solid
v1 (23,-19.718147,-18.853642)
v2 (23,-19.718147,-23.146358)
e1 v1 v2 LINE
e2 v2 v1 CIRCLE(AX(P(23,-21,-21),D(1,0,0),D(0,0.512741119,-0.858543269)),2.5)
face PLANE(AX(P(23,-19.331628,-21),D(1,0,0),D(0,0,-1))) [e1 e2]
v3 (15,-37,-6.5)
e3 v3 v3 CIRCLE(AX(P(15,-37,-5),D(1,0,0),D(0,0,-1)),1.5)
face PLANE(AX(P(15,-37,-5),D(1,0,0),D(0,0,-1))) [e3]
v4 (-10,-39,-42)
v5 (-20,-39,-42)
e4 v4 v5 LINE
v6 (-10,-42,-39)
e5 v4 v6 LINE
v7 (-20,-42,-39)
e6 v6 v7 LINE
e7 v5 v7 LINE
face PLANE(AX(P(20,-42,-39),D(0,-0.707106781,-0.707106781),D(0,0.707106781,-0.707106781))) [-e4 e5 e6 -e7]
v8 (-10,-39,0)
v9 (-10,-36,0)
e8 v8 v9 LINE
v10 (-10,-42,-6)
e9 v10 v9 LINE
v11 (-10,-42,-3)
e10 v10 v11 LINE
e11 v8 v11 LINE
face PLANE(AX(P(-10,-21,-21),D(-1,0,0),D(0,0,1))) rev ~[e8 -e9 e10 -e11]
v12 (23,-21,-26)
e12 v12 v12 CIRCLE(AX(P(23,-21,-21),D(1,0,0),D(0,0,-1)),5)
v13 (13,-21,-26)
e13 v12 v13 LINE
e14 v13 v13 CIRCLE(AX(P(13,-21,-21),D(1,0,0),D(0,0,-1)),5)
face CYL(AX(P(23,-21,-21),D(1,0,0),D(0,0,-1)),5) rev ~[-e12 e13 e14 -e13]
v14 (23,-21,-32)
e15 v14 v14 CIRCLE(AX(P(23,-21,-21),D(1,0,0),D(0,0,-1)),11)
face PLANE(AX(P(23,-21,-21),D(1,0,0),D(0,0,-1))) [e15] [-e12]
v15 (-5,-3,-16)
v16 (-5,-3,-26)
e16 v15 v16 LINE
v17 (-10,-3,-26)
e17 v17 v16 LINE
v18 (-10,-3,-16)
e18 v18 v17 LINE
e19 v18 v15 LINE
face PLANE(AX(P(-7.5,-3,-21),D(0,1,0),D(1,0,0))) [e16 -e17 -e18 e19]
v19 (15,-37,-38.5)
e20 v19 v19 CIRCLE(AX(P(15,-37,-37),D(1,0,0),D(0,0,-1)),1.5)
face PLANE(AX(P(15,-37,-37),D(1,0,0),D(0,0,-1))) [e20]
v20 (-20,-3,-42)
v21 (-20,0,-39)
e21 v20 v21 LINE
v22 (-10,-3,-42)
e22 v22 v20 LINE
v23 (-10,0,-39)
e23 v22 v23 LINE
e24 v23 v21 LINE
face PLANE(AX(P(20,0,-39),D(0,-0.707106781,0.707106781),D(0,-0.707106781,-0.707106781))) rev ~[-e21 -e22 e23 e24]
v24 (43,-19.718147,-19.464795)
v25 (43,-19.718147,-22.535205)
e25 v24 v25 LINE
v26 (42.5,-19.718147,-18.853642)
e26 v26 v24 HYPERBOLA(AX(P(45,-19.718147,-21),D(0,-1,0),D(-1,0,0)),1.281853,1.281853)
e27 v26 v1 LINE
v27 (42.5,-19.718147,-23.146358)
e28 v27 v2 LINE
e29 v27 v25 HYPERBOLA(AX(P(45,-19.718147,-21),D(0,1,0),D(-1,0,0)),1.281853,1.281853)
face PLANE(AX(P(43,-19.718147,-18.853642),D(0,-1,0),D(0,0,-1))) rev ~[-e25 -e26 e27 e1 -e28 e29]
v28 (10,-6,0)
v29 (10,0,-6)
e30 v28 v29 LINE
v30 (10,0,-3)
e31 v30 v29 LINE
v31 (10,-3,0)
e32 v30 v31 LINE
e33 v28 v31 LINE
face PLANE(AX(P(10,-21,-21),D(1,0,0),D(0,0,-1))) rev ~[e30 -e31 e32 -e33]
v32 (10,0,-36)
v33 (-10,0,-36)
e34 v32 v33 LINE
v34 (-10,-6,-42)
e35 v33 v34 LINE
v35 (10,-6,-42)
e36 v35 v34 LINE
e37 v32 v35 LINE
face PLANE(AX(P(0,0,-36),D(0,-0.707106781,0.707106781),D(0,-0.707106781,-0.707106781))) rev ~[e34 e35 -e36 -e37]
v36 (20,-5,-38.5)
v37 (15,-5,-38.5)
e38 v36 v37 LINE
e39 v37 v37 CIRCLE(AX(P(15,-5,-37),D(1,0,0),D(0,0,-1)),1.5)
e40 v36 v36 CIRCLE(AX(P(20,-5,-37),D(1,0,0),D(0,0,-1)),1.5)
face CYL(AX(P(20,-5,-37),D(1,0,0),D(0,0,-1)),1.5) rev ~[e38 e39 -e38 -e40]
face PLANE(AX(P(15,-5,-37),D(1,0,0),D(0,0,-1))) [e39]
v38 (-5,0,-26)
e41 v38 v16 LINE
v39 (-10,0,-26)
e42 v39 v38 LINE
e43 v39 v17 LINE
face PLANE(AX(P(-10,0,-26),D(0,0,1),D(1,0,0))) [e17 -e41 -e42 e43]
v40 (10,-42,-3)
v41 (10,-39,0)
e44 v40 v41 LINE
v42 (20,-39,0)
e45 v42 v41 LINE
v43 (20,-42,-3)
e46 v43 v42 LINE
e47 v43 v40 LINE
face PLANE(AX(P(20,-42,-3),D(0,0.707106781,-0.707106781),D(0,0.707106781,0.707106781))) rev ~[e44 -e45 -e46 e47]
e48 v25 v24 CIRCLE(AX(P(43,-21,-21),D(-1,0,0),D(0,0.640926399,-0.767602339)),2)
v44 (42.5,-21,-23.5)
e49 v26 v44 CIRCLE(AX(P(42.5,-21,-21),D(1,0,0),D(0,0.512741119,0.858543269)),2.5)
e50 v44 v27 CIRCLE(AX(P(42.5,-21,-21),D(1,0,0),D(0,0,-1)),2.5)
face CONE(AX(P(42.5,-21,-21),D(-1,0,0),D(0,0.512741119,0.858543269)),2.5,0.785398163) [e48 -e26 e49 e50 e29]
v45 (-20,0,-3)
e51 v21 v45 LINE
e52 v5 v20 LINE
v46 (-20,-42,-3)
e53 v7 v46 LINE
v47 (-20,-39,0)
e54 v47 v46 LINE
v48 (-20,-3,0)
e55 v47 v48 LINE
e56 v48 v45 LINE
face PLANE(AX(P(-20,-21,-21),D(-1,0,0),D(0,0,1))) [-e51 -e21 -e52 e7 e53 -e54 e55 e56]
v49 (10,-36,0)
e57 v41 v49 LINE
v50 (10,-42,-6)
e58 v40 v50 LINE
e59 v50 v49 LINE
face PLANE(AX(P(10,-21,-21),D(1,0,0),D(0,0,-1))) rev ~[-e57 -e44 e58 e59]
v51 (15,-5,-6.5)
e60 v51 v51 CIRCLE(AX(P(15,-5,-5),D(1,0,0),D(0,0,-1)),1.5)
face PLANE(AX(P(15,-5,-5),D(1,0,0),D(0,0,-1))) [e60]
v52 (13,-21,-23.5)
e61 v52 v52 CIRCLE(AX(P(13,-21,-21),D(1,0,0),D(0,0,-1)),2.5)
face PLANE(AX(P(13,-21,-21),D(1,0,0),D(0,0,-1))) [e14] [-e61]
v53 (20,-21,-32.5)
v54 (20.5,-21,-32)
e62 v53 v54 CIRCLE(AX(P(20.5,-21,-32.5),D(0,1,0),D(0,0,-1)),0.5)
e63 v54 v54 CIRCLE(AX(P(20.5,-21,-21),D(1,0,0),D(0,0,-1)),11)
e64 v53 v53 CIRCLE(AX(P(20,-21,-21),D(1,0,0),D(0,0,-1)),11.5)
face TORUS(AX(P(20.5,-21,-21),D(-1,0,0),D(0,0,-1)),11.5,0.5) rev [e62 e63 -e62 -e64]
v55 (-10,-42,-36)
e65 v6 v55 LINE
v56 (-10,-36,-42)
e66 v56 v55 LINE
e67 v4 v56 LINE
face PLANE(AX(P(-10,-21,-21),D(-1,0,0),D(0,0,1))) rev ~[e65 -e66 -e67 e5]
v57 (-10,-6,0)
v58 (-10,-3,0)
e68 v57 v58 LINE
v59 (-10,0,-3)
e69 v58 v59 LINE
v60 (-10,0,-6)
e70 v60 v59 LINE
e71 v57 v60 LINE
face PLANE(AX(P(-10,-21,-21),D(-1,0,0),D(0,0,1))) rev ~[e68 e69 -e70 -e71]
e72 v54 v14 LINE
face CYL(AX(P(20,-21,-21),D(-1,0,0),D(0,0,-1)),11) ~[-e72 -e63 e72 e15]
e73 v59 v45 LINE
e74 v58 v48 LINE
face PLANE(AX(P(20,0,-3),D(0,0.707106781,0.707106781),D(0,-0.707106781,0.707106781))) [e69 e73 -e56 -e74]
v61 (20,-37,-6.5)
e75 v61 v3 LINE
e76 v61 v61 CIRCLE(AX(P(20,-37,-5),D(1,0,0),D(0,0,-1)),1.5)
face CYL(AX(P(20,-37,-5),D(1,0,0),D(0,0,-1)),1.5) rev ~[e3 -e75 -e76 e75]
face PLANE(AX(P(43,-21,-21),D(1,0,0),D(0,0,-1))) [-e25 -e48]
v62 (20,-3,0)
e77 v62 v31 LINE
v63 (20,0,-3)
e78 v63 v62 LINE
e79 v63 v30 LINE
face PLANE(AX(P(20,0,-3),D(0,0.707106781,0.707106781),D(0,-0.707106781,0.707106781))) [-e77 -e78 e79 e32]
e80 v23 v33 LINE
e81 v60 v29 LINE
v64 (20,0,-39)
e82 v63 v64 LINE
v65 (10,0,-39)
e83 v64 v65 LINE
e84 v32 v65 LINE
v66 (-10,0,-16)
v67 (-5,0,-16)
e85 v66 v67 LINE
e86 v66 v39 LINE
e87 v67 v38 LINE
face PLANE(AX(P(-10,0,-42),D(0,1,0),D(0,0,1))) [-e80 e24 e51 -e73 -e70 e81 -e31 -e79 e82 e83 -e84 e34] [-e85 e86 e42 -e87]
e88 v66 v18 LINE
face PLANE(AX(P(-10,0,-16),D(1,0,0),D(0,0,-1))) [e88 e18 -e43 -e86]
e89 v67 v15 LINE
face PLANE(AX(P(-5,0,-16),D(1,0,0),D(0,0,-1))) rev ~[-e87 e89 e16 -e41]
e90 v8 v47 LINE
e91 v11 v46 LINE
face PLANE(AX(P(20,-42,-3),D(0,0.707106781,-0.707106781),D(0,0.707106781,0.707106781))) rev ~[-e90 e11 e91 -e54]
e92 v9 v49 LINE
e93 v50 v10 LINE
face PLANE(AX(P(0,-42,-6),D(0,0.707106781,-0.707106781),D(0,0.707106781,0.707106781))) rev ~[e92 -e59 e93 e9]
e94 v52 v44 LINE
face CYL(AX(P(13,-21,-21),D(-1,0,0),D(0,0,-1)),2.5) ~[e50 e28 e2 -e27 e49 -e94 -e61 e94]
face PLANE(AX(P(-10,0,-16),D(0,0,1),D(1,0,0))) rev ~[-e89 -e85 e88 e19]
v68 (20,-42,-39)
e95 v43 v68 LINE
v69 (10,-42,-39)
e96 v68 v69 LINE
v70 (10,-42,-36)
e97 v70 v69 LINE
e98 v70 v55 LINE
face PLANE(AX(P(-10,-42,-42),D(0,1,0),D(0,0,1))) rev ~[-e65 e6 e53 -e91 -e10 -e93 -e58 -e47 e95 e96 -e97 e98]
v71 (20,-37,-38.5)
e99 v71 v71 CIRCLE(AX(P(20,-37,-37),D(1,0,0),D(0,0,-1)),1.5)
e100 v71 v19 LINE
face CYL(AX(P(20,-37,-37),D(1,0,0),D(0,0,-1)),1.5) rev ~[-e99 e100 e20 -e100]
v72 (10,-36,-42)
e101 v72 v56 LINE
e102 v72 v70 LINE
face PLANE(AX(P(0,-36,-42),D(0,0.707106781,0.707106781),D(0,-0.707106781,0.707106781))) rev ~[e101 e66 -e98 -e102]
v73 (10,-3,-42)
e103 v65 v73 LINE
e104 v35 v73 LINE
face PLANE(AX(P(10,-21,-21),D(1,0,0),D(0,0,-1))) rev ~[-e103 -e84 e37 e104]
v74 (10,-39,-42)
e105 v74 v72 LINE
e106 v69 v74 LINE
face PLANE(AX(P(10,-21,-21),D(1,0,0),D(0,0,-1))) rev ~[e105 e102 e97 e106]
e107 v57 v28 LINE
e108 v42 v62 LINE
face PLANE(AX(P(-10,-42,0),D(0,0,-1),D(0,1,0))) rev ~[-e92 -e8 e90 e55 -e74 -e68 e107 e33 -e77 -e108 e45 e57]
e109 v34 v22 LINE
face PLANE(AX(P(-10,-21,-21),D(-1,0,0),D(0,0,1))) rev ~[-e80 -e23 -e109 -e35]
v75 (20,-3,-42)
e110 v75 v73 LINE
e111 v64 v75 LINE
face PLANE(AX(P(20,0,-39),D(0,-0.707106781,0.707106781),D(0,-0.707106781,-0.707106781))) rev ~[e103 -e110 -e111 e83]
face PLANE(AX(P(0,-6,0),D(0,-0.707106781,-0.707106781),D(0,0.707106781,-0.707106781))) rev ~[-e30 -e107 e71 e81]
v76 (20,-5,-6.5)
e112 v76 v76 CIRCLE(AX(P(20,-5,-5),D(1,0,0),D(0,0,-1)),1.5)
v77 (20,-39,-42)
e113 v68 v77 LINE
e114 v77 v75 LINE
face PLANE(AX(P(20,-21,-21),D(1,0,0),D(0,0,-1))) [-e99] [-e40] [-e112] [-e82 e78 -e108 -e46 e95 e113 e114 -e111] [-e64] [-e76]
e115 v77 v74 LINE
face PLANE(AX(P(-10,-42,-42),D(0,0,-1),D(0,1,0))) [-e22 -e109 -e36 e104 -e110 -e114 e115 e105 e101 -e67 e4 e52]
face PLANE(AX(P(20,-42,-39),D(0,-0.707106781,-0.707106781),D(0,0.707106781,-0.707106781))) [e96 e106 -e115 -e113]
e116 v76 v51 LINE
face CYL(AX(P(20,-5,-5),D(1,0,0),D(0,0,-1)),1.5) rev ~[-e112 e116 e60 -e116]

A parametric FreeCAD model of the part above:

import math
import FreeCAD as App
import Part
import Sketcher


def edges_at(feature, points):
    """Names of the edges that pass closest to the given points."""
    edges = feature.Shape.Edges
    near = lambda p: min(range(len(edges)), key=lambda i: edges[i].distToShape(Part.Vertex(*p))[0])
    return sorted({f"Edge{near(p) + 1}" for p in points})


def add_polygon(sketch, points):
    """Adds a closed chain of lines whose ends are joined by coincident constraints."""
    first, n = sketch.GeometryCount, len(points)
    for a, b in zip(points, points[1:] + points[:1]):
        sketch.addGeometry(Part.LineSegment(App.Vector(*a, 0), App.Vector(*b, 0)), False)
    for i in range(n):
        sketch.addConstraint(Sketcher.Constraint("Coincident", first + i, 2, first + (i + 1) % n, 1))

doc = App.newDocument("Part")
body = doc.addObject("PartDesign::Body", "Body")

# Sketch on YZ plane
sketch1 = body.newObject("Sketcher::SketchObject", "Sketch")
sketch1.AttachmentSupport = (doc.getObject("YZ_Plane"), [""])
sketch1.MapMode = "FlatFace"
add_polygon(sketch1, [(0, -36), (0, -6), (-6, 0), (-36, 0), (-42, -6), (-42, -36), (-36, -42), (-6, -42)])  # lines 0-7
sketch1.addConstraint(Sketcher.Constraint("Vertical", 0))
sketch1.addConstraint(Sketcher.Constraint("Horizontal", 2))
sketch1.addConstraint(Sketcher.Constraint("Vertical", 4))
sketch1.addConstraint(Sketcher.Constraint("Horizontal", 6))
sketch1.addConstraint(Sketcher.Constraint("PointOnObject", 0, 2, -2))
sketch1.addConstraint(Sketcher.Constraint("PointOnObject", 1, 2, -1))
sketch1.addConstraint(Sketcher.Constraint("Perpendicular", 1, 3))
sketch1.addConstraint(Sketcher.Constraint("Perpendicular", 3, 5))
sketch1.addConstraint(Sketcher.Constraint("Perpendicular", 5, 7))
sketch1.addConstraint(Sketcher.Constraint("Horizontal", 0, 2, 3, 2))
sketch1.addConstraint(Sketcher.Constraint("Horizontal", 4, 2, 7, 2))
sketch1.addConstraint(Sketcher.Constraint("Vertical", 2, 2, 5, 2))
sketch1.addConstraint(Sketcher.Constraint("Vertical", 1, 2, 6, 2))
sketch1.addConstraint(Sketcher.Constraint("Equal", 6, 0))
sketch1.addConstraint(Sketcher.Constraint("DistanceX", 2, 2, 2, 1, 30.0))
sketch1.addConstraint(Sketcher.Constraint("DistanceY", 0, 2, -1, 1, 6.0))
pad1 = body.newObject("PartDesign::Pad", "Pad")
pad1.Profile = sketch1
pad1.Length = 20
pad1.Midplane = True

# Sketch on YZ plane
sketch2 = body.newObject("Sketcher::SketchObject", "Sketch001")
sketch2.AttachmentSupport = (doc.getObject("YZ_Plane"), [""])
sketch2.MapMode = "FlatFace"
sketch2.AttachmentOffset = App.Placement(App.Vector(0, 0, 10), App.Rotation())
add_polygon(sketch2, [(0, 0), (-42, 0), (-42, -42), (0, -42)])  # lines 0-3
sketch2.addConstraint(Sketcher.Constraint("Horizontal", 0))
sketch2.addConstraint(Sketcher.Constraint("Vertical", 1))
sketch2.addConstraint(Sketcher.Constraint("Horizontal", 2))
sketch2.addConstraint(Sketcher.Constraint("Vertical", 3))
sketch2.addConstraint(Sketcher.Constraint("Coincident", 3, 2, -1, 1))
sketch2.addConstraint(Sketcher.Constraint("Equal", 2, 1))
sketch2.addConstraint(Sketcher.Constraint("DistanceX", 0, 2, 0, 1, 42.0))
pad2 = body.newObject("PartDesign::Pad", "Pad001")
pad2.Profile = sketch2
pad2.Length = 10

# Sketch on YZ plane
sketch3 = body.newObject("Sketcher::SketchObject", "Sketch002")
sketch3.AttachmentSupport = (doc.getObject("YZ_Plane"), [""])
sketch3.MapMode = "FlatFace"
sketch3.AttachmentOffset = App.Placement(App.Vector(0, 0, -10), App.Rotation())
add_polygon(sketch3, [(0, -42), (-42, -42), (-42, 0), (0, 0)])  # lines 0-3
sketch3.addConstraint(Sketcher.Constraint("Horizontal", 0))
sketch3.addConstraint(Sketcher.Constraint("Vertical", 1))
sketch3.addConstraint(Sketcher.Constraint("Horizontal", 2))
sketch3.addConstraint(Sketcher.Constraint("Vertical", 3))
sketch3.addConstraint(Sketcher.Constraint("Coincident", 2, 2, -1, 1))
sketch3.addConstraint(Sketcher.Constraint("Equal", 2, 1))
sketch3.addConstraint(Sketcher.Constraint("DistanceX", 0, 2, 0, 1, 42.0))
pad3 = body.newObject("PartDesign::Pad", "Pad002")
pad3.Profile = sketch3
pad3.Length = 10
pad3.Reversed = True

# Sketch on YZ plane
sketch4 = body.newObject("Sketcher::SketchObject", "Sketch003")
sketch4.AttachmentSupport = (doc.getObject("YZ_Plane"), [""])
sketch4.MapMode = "FlatFace"
sketch4.AttachmentOffset = App.Placement(App.Vector(0, 0, 20), App.Rotation())
sketch4.addGeometry(Part.Circle(App.Vector(-21, -21, 0), App.Vector(0, 0, 1), 11), False)
sketch4.addConstraint(Sketcher.Constraint("Diameter", 0, 22.0))
sketch4.addConstraint(Sketcher.Constraint("DistanceX", 0, 3, -1, 1, 21.0))
sketch4.addConstraint(Sketcher.Constraint("DistanceY", 0, 3, -1, 1, 21.0))
pad4 = body.newObject("PartDesign::Pad", "Pad003")
pad4.Profile = sketch4
pad4.Length = 3
doc.recompute()

fillet = body.newObject("PartDesign::Fillet", "Fillet")
fillet.Base = (pad4, edges_at(pad4, [(20, -21, -10)]))
fillet.Radius = 0.5

# Sketch on YZ plane
sketch5 = body.newObject("Sketcher::SketchObject", "Sketch004")
sketch5.AttachmentSupport = (doc.getObject("YZ_Plane"), [""])
sketch5.MapMode = "FlatFace"
sketch5.AttachmentOffset = App.Placement(App.Vector(0, 0, 23), App.Rotation())
sketch5.addGeometry(Part.Circle(App.Vector(-21, -21, 0), App.Vector(0, 0, 1), 5), False)
sketch5.addConstraint(Sketcher.Constraint("Diameter", 0, 10.0))
sketch5.addConstraint(Sketcher.Constraint("DistanceX", 0, 3, -1, 1, 21.0))
sketch5.addConstraint(Sketcher.Constraint("DistanceY", 0, 3, -1, 1, 21.0))
pocket1 = body.newObject("PartDesign::Pocket", "Pocket")
pocket1.Profile = sketch5
pocket1.Length = 10

# Sketch on YZ plane
sketch6 = body.newObject("Sketcher::SketchObject", "Sketch005")
sketch6.AttachmentSupport = (doc.getObject("YZ_Plane"), [""])
sketch6.MapMode = "FlatFace"
sketch6.AttachmentOffset = App.Placement(App.Vector(0, 0, 13), App.Rotation())
sketch6.addGeometry(Part.Circle(App.Vector(-21, -21, 0), App.Vector(0, 0, 1), 2.5), False)
sketch6.addConstraint(Sketcher.Constraint("Diameter", 0, 5.0))
sketch6.addConstraint(Sketcher.Constraint("DistanceX", 0, 3, -1, 1, 21.0))
sketch6.addConstraint(Sketcher.Constraint("DistanceY", 0, 3, -1, 1, 21.0))
pad5 = body.newObject("PartDesign::Pad", "Pad004")
pad5.Profile = sketch6
pad5.Length = 30

# Sketch on YZ plane
sketch7 = body.newObject("Sketcher::SketchObject", "Sketch006")
sketch7.AttachmentSupport = (doc.getObject("YZ_Plane"), [""])
sketch7.MapMode = "FlatFace"
sketch7.AttachmentOffset = App.Placement(App.Vector(0, 0, 43), App.Rotation())
sketch7.addGeometry(Part.LineSegment(App.Vector(-19.718147, -18.853642, 0), App.Vector(-19.718147, -23.146358, 0)), False)
sketch7.addGeometry(Part.ArcOfCircle(Part.Circle(App.Vector(-21, -21, 0), App.Vector(0, 0, 1), 2.5), math.radians(-59.153413), math.radians(59.153413)), False)
sketch7.addConstraint(Sketcher.Constraint("Coincident", 0, 1, 1, 2))
sketch7.addConstraint(Sketcher.Constraint("Coincident", 1, 1, 0, 2))
sketch7.addConstraint(Sketcher.Constraint("Vertical", 0))
sketch7.addConstraint(Sketcher.Constraint("Radius", 1, 2.5))
sketch7.addConstraint(Sketcher.Constraint("DistanceX", 1, 3, -1, 1, 21.0))
sketch7.addConstraint(Sketcher.Constraint("DistanceY", 1, 3, -1, 1, 21.0))
sketch7.addConstraint(Sketcher.Constraint("DistanceY", 0, 2, 0, 1, 4.292716))
pocket2 = body.newObject("PartDesign::Pocket", "Pocket001")
pocket2.Profile = sketch7
pocket2.Length = 20
doc.recompute()

chamfer = body.newObject("PartDesign::Chamfer", "Chamfer")
chamfer.Base = (pocket2, edges_at(pocket2, [(43, -23.41, -20.335)]))
chamfer.Size = 0.5

# Sketch on YZ plane
sketch8 = body.newObject("Sketcher::SketchObject", "Sketch007")
sketch8.AttachmentSupport = (doc.getObject("YZ_Plane"), [""])
sketch8.MapMode = "FlatFace"
sketch8.AttachmentOffset = App.Placement(App.Vector(0, 0, 20), App.Rotation())
sketch8.addGeometry(Part.Circle(App.Vector(-5, -5, 0), App.Vector(0, 0, 1), 1.5), False)
sketch8.addGeometry(Part.Circle(App.Vector(-5, -37, 0), App.Vector(0, 0, 1), 1.5), False)
sketch8.addGeometry(Part.Circle(App.Vector(-37, -5, 0), App.Vector(0, 0, 1), 1.5), False)
sketch8.addGeometry(Part.Circle(App.Vector(-37, -37, 0), App.Vector(0, 0, 1), 1.5), False)
sketch8.addConstraint(Sketcher.Constraint("Equal", 0, 1))
sketch8.addConstraint(Sketcher.Constraint("Equal", 1, 2))
sketch8.addConstraint(Sketcher.Constraint("Equal", 2, 3))
sketch8.addConstraint(Sketcher.Constraint("Horizontal", 0, 3, 2, 3))
sketch8.addConstraint(Sketcher.Constraint("Horizontal", 1, 3, 3, 3))
sketch8.addConstraint(Sketcher.Constraint("Vertical", 0, 3, 1, 3))
sketch8.addConstraint(Sketcher.Constraint("Vertical", 2, 3, 3, 3))
sketch8.addConstraint(Sketcher.Constraint("Diameter", 0, 3.0))
sketch8.addConstraint(Sketcher.Constraint("DistanceX", 0, 3, -1, 1, 5.0))
sketch8.addConstraint(Sketcher.Constraint("DistanceY", 0, 3, -1, 1, 5.0))
sketch8.addConstraint(Sketcher.Constraint("DistanceY", 1, 3, -1, 1, 37.0))
sketch8.addConstraint(Sketcher.Constraint("DistanceX", 2, 3, -1, 1, 37.0))
pocket3 = body.newObject("PartDesign::Pocket", "Pocket002")
pocket3.Profile = sketch8
pocket3.Length = 5

# Sketch on YZ plane
sketch9 = body.newObject("Sketcher::SketchObject", "Sketch008")
sketch9.AttachmentSupport = (doc.getObject("YZ_Plane"), [""])
sketch9.MapMode = "FlatFace"
sketch9.AttachmentOffset = App.Placement(App.Vector(0, 0, 20), App.Rotation())
add_polygon(sketch9, [(-3, 0), (0, -3), (0, 0)])  # lines 0-2
add_polygon(sketch9, [(0, -39), (-3, -42), (0, -42)])  # lines 3-5
add_polygon(sketch9, [(-42, -3), (-39, 0), (-42, 0)])  # lines 6-8
add_polygon(sketch9, [(-39, -42), (-42, -39), (-42, -42)])  # lines 9-11
sketch9.addConstraint(Sketcher.Constraint("Vertical", 1))
sketch9.addConstraint(Sketcher.Constraint("Horizontal", 2))
sketch9.addConstraint(Sketcher.Constraint("Horizontal", 4))
sketch9.addConstraint(Sketcher.Constraint("Vertical", 5))
sketch9.addConstraint(Sketcher.Constraint("Horizontal", 7))
sketch9.addConstraint(Sketcher.Constraint("Vertical", 8))
sketch9.addConstraint(Sketcher.Constraint("Vertical", 10))
sketch9.addConstraint(Sketcher.Constraint("Horizontal", 11))
sketch9.addConstraint(Sketcher.Constraint("Coincident", 1, 2, -1, 1))
sketch9.addConstraint(Sketcher.Constraint("PointOnObject", 4, 2, -2))
sketch9.addConstraint(Sketcher.Constraint("PointOnObject", 6, 2, -1))
sketch9.addConstraint(Sketcher.Constraint("Perpendicular", 0, 3))
sketch9.addConstraint(Sketcher.Constraint("Parallel", 3, 6))
sketch9.addConstraint(Sketcher.Constraint("Perpendicular", 6, 9))
sketch9.addConstraint(Sketcher.Constraint("Horizontal", 0, 2, 8, 2))
sketch9.addConstraint(Sketcher.Constraint("Horizontal", 5, 2, 9, 2))
sketch9.addConstraint(Sketcher.Constraint("Horizontal", 4, 2, 10, 2))
sketch9.addConstraint(Sketcher.Constraint("Vertical", 2, 2, 3, 2))
sketch9.addConstraint(Sketcher.Constraint("Vertical", 8, 2, 9, 2))
sketch9.addConstraint(Sketcher.Constraint("Vertical", 6, 2, 11, 2))
sketch9.addConstraint(Sketcher.Constraint("DistanceX", 2, 2, 2, 1, 3.0))
sketch9.addConstraint(Sketcher.Constraint("DistanceY", 3, 2, -1, 1, 42.0))
sketch9.addConstraint(Sketcher.Constraint("DistanceX", 6, 2, -1, 1, 39.0))
pocket4 = body.newObject("PartDesign::Pocket", "Pocket003")
pocket4.Profile = sketch9
pocket4.Type = "ThroughAll"

# Sketch on XZ plane
sketch10 = body.newObject("Sketcher::SketchObject", "Sketch009")
sketch10.AttachmentSupport = (doc.getObject("XZ_Plane"), [""])
sketch10.MapMode = "FlatFace"
add_polygon(sketch10, [(-10, -26), (-10, -16), (-5, -16), (-5, -26)])  # lines 0-3
sketch10.addConstraint(Sketcher.Constraint("Vertical", 0))
sketch10.addConstraint(Sketcher.Constraint("Horizontal", 1))
sketch10.addConstraint(Sketcher.Constraint("Vertical", 2))
sketch10.addConstraint(Sketcher.Constraint("Horizontal", 3))
sketch10.addConstraint(Sketcher.Constraint("DistanceX", 1, 1, 1, 2, 5.0))
sketch10.addConstraint(Sketcher.Constraint("DistanceY", 0, 1, 0, 2, 10.0))
sketch10.addConstraint(Sketcher.Constraint("DistanceX", 0, 2, -1, 1, 10.0))
sketch10.addConstraint(Sketcher.Constraint("DistanceY", 0, 2, -1, 1, 16.0))
pocket5 = body.newObject("PartDesign::Pocket", "Pocket004")
pocket5.Profile = sketch10
pocket5.Length = 3
pocket5.Reversed = True

doc.recompute()
